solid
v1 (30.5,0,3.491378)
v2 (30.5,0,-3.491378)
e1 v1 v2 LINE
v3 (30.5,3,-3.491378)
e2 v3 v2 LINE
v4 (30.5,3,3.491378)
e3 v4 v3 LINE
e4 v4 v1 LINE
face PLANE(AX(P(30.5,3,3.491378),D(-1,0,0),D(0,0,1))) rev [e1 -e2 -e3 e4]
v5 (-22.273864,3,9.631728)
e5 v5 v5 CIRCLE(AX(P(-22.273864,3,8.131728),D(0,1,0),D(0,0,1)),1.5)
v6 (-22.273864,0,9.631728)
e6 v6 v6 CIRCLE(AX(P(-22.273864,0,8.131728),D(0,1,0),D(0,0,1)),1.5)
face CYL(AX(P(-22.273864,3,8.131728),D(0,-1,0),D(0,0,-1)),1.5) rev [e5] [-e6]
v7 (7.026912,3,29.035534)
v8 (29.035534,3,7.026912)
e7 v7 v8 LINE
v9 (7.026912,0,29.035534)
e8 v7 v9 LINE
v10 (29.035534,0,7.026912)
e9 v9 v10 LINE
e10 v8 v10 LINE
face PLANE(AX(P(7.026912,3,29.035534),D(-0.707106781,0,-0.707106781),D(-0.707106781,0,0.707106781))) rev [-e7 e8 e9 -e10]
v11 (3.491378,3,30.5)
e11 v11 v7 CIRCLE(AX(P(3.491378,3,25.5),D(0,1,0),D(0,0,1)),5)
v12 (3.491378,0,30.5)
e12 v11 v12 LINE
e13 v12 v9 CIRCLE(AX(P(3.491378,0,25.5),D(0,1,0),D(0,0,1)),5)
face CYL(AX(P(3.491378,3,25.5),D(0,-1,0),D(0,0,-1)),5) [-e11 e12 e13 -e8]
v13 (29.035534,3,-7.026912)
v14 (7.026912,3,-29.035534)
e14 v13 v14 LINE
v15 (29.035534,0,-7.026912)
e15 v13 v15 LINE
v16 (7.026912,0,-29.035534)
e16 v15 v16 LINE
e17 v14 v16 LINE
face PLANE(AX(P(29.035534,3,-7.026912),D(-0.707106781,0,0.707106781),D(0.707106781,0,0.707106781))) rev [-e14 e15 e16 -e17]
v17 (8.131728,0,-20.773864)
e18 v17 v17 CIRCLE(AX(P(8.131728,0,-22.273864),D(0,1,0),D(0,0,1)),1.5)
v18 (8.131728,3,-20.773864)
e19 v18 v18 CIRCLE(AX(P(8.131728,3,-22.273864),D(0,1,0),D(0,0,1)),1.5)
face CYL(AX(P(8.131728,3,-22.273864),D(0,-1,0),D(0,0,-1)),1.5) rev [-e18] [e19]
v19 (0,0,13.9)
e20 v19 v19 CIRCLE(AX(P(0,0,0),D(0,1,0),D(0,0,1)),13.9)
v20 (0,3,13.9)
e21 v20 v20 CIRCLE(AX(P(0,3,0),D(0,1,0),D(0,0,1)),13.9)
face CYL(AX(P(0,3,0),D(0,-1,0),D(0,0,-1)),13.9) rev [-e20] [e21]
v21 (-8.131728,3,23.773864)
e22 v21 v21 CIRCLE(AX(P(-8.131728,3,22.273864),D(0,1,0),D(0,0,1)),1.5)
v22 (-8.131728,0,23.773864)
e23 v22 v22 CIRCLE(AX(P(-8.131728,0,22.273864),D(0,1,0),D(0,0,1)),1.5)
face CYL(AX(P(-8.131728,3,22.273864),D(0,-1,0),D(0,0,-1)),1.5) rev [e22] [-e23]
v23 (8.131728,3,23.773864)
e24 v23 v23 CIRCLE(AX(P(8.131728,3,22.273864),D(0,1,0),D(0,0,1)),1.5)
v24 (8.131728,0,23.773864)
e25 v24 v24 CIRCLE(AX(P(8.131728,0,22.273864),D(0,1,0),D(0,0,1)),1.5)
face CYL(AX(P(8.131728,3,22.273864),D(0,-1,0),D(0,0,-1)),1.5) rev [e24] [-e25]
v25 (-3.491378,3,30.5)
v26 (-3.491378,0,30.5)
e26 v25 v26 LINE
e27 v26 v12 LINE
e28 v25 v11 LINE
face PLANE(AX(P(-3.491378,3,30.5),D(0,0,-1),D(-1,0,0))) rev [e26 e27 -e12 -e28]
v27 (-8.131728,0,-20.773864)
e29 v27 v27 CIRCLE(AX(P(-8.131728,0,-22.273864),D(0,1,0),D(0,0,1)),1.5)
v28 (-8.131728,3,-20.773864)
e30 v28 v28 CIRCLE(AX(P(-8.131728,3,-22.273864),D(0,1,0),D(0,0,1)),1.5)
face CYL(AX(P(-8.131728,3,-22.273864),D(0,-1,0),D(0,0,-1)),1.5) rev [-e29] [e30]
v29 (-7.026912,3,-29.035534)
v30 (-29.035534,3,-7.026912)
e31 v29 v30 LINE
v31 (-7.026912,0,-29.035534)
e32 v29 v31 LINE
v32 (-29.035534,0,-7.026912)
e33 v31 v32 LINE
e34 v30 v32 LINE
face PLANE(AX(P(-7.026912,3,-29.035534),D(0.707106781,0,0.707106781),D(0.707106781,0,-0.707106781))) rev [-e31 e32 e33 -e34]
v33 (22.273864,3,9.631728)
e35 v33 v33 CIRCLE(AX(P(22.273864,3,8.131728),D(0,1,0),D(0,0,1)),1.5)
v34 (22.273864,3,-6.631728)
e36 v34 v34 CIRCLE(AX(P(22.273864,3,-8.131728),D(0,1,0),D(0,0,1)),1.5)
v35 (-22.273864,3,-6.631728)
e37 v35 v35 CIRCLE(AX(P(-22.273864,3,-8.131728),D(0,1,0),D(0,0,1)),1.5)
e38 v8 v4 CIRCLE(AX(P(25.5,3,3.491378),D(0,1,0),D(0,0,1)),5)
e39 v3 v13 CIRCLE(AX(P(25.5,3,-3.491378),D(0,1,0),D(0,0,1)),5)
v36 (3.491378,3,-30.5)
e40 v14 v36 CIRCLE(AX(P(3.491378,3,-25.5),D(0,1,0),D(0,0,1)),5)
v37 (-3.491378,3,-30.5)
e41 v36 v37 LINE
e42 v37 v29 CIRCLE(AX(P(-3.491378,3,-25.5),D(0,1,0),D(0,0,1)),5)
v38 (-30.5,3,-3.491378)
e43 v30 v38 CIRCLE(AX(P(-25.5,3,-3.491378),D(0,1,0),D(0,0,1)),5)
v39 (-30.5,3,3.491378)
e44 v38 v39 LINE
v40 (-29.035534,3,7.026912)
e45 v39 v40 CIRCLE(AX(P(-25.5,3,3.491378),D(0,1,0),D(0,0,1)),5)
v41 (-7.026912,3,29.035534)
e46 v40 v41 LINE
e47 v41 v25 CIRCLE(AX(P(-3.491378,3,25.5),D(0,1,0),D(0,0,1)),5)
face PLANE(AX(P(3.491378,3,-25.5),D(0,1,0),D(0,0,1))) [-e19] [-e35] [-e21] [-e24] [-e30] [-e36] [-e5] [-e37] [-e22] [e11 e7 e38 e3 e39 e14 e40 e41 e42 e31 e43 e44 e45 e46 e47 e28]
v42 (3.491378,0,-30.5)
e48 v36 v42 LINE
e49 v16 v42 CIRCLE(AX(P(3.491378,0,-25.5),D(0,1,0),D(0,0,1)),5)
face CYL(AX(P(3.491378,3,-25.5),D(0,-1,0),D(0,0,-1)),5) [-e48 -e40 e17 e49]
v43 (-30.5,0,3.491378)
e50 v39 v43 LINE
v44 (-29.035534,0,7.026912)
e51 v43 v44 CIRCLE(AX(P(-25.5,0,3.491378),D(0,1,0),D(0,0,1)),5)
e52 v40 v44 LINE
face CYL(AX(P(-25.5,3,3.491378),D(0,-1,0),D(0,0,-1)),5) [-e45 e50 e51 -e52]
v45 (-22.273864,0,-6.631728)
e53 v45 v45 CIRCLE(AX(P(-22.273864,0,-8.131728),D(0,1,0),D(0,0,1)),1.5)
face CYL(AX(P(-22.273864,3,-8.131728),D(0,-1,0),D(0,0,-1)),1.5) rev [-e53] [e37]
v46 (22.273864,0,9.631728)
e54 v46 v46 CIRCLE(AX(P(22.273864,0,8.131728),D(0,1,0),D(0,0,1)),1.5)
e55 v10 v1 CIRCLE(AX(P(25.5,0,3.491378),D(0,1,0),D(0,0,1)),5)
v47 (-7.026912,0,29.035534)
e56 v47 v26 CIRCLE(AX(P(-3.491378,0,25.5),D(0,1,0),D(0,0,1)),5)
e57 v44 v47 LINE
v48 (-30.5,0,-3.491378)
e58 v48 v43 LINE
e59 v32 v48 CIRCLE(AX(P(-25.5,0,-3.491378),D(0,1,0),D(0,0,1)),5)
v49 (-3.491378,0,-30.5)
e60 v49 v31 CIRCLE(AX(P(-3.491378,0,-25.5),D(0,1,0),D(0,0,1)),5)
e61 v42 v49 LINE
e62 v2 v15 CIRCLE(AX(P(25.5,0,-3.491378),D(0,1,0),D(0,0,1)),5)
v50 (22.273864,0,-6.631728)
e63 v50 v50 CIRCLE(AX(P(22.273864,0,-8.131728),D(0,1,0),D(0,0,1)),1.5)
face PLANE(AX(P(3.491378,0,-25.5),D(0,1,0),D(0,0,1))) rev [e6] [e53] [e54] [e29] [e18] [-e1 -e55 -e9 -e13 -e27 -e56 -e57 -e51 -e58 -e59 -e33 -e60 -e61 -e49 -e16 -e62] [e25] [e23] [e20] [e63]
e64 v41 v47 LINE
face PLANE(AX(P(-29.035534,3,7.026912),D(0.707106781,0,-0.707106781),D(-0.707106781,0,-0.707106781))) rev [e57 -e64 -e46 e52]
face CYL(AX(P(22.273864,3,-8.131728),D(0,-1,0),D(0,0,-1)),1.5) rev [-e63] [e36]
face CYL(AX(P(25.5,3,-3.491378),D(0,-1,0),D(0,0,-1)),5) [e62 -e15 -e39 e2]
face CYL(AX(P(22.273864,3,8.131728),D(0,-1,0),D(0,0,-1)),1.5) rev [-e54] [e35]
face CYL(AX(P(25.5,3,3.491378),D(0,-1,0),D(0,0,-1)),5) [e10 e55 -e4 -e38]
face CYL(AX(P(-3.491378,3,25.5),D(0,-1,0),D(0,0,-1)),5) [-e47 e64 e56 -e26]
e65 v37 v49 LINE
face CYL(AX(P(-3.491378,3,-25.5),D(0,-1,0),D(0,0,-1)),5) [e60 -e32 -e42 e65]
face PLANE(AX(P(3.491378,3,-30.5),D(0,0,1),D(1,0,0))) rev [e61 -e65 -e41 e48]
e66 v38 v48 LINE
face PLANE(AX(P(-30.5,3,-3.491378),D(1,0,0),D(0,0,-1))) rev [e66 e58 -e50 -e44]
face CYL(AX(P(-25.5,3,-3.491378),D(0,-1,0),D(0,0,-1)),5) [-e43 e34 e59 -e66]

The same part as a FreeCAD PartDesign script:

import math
import FreeCAD as App
import Part
import Sketcher
from FreeCAD import Vector
Q = App.Units.Quantity

doc = App.newDocument("Part")
params = doc.addObject("Spreadsheet::Sheet", "Params")
for row, (alias, value) in enumerate([
    ("sketch1_diameter", "3 mm"),
    ("sketch1_radius", "5 mm"),
    ("sketch1_diameter2", "27.8 mm"),
    ("pad1_length", "3 mm"),
], start=1):
    params.set(f"A{row}", alias)
    params.set(f"B{row}", "=" + value)
    params.setAlias(f"B{row}", alias)

body = doc.addObject("PartDesign::Body", "Body")

# Sketch on XZ plane
sketch1 = body.newObject("Sketcher::SketchObject", "Sketch")
sketch1.AttachmentSupport = (doc.getObject("XZ_Plane"), [""])
sketch1.MapMode = "FlatFace"
sketch1.addGeometry([
    Part.LineSegment(Vector(3.5, -30.5, 0), Vector(-3.5, -30.5, 0)),  # 0
    Part.ArcOfCircle(Part.Circle(Vector(-3.5, -25.5, 0), Vector(0, 0, 1), 5), math.radians(-135), math.radians(-90)),  # 1
    Part.LineSegment(Vector(-7, -29, 0), Vector(-29, -7, 0)),  # 2
    Part.ArcOfCircle(Part.Circle(Vector(-25.5, -3.5, 0), Vector(0, 0, 1), 5), math.radians(180), math.radians(225)),  # 3
    Part.LineSegment(Vector(-30.5, -3.5, 0), Vector(-30.5, 3.5, 0)),  # 4
    Part.ArcOfCircle(Part.Circle(Vector(-25.5, 3.5, 0), Vector(0, 0, 1), 5), math.radians(135), math.radians(180)),  # 5
    Part.LineSegment(Vector(-29, 7, 0), Vector(-7, 29, 0)),  # 6
    Part.ArcOfCircle(Part.Circle(Vector(-3.5, 25.5, 0), Vector(0, 0, 1), 5), math.radians(90), math.radians(135)),  # 7
    Part.LineSegment(Vector(-3.5, 30.5, 0), Vector(3.5, 30.5, 0)),  # 8
    Part.ArcOfCircle(Part.Circle(Vector(3.5, 25.5, 0), Vector(0, 0, 1), 5), math.radians(45), math.radians(90)),  # 9
    Part.LineSegment(Vector(7, 29, 0), Vector(29, 7, 0)),  # 10
    Part.ArcOfCircle(Part.Circle(Vector(25.5, 3.5, 0), Vector(0, 0, 1), 5), math.radians(0), math.radians(45)),  # 11
    Part.LineSegment(Vector(30.5, 3.5, 0), Vector(30.5, -3.5, 0)),  # 12
    Part.ArcOfCircle(Part.Circle(Vector(25.5, -3.5, 0), Vector(0, 0, 1), 5), math.radians(-45), math.radians(0)),  # 13
    Part.LineSegment(Vector(29, -7, 0), Vector(7, -29, 0)),  # 14
    Part.ArcOfCircle(Part.Circle(Vector(3.5, -25.5, 0), Vector(0, 0, 1), 5), math.radians(-90), math.radians(-45)),  # 15
    Part.Circle(Vector(-8.1, 22.3, 0), Vector(0, 0, 1), 1.5),  # 16
    Part.Circle(Vector(-22.3, 8.1, 0), Vector(0, 0, 1), 1.5),  # 17
    Part.Circle(Vector(8.1, 22.3, 0), Vector(0, 0, 1), 1.5),  # 18
    Part.Circle(Vector(22.3, 8.1, 0), Vector(0, 0, 1), 1.5),  # 19
    Part.Circle(Vector(-22.3, -8.1, 0), Vector(0, 0, 1), 1.5),  # 20
    Part.Circle(Vector(-8.1, -22.3, 0), Vector(0, 0, 1), 1.5),  # 21
    Part.Circle(Vector(0, 0, 0), Vector(0, 0, 1), 13.9),  # 22
    Part.Circle(Vector(22.3, -8.1, 0), Vector(0, 0, 1), 1.5),  # 23
    Part.Circle(Vector(8.1, -22.3, 0), Vector(0, 0, 1), 1.5),  # 24
], False)
sketch1.addConstraint([
    Sketcher.Constraint("Tangent", 0, 2, 1, 2),
    Sketcher.Constraint("Tangent", 1, 1, 2, 1),
    Sketcher.Constraint("Tangent", 2, 2, 3, 2),
    Sketcher.Constraint("Tangent", 3, 1, 4, 1),
    Sketcher.Constraint("Tangent", 4, 2, 5, 2),
    Sketcher.Constraint("Tangent", 5, 1, 6, 1),
    Sketcher.Constraint("Tangent", 6, 2, 7, 2),
    Sketcher.Constraint("Tangent", 7, 1, 8, 1),
    Sketcher.Constraint("Tangent", 8, 2, 9, 2),
    Sketcher.Constraint("Tangent", 9, 1, 10, 1),
    Sketcher.Constraint("Tangent", 10, 2, 11, 2),
    Sketcher.Constraint("Tangent", 11, 1, 12, 1),
    Sketcher.Constraint("Tangent", 12, 2, 13, 2),
    Sketcher.Constraint("Tangent", 13, 1, 14, 1),
    Sketcher.Constraint("Tangent", 14, 2, 15, 2),
    Sketcher.Constraint("Tangent", 15, 1, 0, 1),
    Sketcher.Constraint("Horizontal", 0),
    Sketcher.Constraint("Vertical", 4),
    Sketcher.Constraint("Horizontal", 8),
    Sketcher.Constraint("Vertical", 12),
    Sketcher.Constraint("Coincident", 22, 3, -1, 1),
    Sketcher.Constraint("Equal", 1, 3),
    Sketcher.Constraint("Equal", 3, 5),
    Sketcher.Constraint("Equal", 5, 7),
    Sketcher.Constraint("Equal", 7, 9),
    Sketcher.Constraint("Equal", 9, 11),
    Sketcher.Constraint("Equal", 11, 13),
    Sketcher.Constraint("Equal", 13, 15),
    Sketcher.Constraint("Equal", 16, 17),
    Sketcher.Constraint("Equal", 17, 18),
    Sketcher.Constraint("Equal", 18, 19),
    Sketcher.Constraint("Equal", 19, 20),
    Sketcher.Constraint("Equal", 20, 21),
    Sketcher.Constraint("Equal", 21, 23),
    Sketcher.Constraint("Equal", 23, 24),
    Sketcher.Constraint("Symmetric", 1, 3, 9, 3, -1, 1),
    Sketcher.Constraint("Symmetric", 3, 3, 11, 3, -1, 1),
    Sketcher.Constraint("Symmetric", 19, 3, 20, 3, -1, 1),
    Sketcher.Constraint("Symmetric", 18, 3, 21, 3, -1, 1),
    Sketcher.Constraint("Symmetric", 17, 3, 23, 3, -1, 1),
    Sketcher.Constraint("Symmetric", 16, 3, 24, 3, -1, 1),
    Sketcher.Constraint("Symmetric", 5, 1, 13, 1, -1, 1),
    Sketcher.Constraint("Symmetric", 16, 3, 18, 3, -2),
    Sketcher.Constraint("Symmetric", 17, 3, 19, 3, -2),
    Sketcher.Constraint("Symmetric", 6, 2, 9, 1, -2),
    Sketcher.Constraint("Perpendicular", 2, 6),
    Sketcher.Constraint("Equal", 8, 4),
    Sketcher.Constraint("Diameter", 16, Q("3 mm")),
    Sketcher.Constraint("Radius", 1, Q("5 mm")),
    Sketcher.Constraint("Diameter", 22, Q("27.8 mm")),
    Sketcher.Constraint("DistanceY", 1, 3, 7, 3, Q("51 mm")),
    Sketcher.Constraint("Distance", 2, Q("31.124892 mm")),
    Sketcher.Constraint("DistanceX", 16, 3, 7, 3, Q("4.64035 mm")),
    Sketcher.Constraint("DistanceY", 3, 3, 16, 3, Q("25.765242 mm")),
    Sketcher.Constraint("DistanceY", 5, 3, 17, 3, Q("4.64035 mm")),
    Sketcher.Constraint("DistanceX", 17, 3, 9, 3, Q("25.765242 mm")),
])
sketch1.setExpression("Constraints[47]", "Params.sketch1_diameter")
sketch1.setExpression("Constraints[48]", "Params.sketch1_radius")
sketch1.setExpression("Constraints[49]", "Params.sketch1_diameter2")
pad1 = body.newObject("PartDesign::Pad", "Pad")
pad1.Profile = sketch1
pad1.setExpression("Length", "Params.pad1_length")
pad1.Reversed = True

doc.recompute()
